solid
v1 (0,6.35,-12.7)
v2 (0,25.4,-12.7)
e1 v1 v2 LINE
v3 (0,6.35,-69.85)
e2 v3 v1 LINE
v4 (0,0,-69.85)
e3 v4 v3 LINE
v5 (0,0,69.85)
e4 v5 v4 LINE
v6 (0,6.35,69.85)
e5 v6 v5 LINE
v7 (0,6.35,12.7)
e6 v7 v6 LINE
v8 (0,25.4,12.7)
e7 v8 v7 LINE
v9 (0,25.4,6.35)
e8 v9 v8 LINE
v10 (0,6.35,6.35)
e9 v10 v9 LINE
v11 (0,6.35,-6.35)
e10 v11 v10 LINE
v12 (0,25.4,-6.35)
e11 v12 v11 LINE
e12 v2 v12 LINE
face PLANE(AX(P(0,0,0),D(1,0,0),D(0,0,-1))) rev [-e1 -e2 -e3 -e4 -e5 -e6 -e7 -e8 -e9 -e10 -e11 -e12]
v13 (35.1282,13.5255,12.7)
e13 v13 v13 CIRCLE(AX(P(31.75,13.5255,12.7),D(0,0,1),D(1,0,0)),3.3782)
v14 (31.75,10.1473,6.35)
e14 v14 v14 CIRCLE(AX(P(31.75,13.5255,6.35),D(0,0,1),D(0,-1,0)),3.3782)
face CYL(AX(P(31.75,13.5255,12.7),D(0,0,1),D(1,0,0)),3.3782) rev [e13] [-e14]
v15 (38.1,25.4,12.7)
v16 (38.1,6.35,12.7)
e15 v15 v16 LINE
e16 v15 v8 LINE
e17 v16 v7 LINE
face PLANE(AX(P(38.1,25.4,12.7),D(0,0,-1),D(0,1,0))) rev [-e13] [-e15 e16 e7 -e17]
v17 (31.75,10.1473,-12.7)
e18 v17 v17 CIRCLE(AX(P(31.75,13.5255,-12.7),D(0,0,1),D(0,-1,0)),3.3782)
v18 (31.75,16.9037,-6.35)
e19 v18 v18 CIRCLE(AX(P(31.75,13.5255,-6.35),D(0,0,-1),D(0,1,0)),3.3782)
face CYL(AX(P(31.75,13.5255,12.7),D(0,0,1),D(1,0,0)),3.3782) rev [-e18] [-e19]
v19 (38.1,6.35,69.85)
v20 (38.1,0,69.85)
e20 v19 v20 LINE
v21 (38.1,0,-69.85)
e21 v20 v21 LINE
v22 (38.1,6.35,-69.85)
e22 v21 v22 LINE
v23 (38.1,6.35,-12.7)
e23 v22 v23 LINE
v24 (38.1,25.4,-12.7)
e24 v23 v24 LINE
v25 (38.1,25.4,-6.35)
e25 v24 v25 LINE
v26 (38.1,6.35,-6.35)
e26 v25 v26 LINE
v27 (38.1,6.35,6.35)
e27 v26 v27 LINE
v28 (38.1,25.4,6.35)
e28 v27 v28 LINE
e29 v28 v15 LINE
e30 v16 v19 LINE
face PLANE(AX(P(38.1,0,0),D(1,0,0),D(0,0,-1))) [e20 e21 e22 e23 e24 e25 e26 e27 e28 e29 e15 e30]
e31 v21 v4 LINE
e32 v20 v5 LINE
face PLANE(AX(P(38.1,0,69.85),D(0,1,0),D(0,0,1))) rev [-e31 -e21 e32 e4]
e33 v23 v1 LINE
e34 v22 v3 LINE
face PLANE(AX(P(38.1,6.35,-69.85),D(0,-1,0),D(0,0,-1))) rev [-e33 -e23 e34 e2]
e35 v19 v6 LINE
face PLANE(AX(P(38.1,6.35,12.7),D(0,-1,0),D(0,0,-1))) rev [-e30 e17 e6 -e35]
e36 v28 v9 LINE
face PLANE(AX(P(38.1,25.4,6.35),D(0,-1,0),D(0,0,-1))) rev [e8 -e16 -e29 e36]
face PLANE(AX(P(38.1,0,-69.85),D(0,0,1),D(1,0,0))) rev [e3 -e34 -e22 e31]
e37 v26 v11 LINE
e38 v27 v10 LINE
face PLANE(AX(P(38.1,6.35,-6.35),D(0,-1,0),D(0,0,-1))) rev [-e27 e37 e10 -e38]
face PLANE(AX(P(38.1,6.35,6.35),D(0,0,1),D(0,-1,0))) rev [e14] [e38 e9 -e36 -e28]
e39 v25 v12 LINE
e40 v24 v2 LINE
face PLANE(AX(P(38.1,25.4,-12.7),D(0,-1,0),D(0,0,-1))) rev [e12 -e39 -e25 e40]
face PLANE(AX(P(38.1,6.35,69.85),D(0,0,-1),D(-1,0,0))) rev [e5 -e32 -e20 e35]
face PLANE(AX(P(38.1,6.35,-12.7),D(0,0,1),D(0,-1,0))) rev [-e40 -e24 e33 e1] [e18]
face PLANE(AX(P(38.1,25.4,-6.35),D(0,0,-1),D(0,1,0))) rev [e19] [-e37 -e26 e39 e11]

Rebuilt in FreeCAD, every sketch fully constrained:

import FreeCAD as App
import Part
import Sketcher

V = App.Vector
Q = App.Units.Quantity

doc = App.newDocument("Part")
params = doc.addObject("Spreadsheet::Sheet", "Params")
for row, (alias, value) in enumerate([
    ("sketch1_height", "5.5 in"),
    ("sketch1_height2", "0.5 in"),
    ("pad1_length", "1.5 in"),
    ("sketch2_diameter", "0.266 in"),
    ("hole_diameter", "0.266 in"),
], start=1):
    params.set(f"A{row}", alias)
    params.set(f"B{row}", "=" + value)
    params.setAlias(f"B{row}", alias)

body = doc.addObject("PartDesign::Body", "Body")

# Sketch on YZ plane
sketch1 = body.newObject("Sketcher::SketchObject", "Sketch")
sketch1.AttachmentSupport = (doc.getObject("YZ_Plane"), [""])
sketch1.MapMode = "FlatFace"
sketch1.addGeometry([
    Part.LineSegment(V(0, 70, 0), V(0, -70, 0)),  # 0
    Part.LineSegment(V(0, -70, 0), V(6, -70, 0)),  # 1
    Part.LineSegment(V(6, -70, 0), V(6, -13, 0)),  # 2
    Part.LineSegment(V(6, -13, 0), V(25, -13, 0)),  # 3
    Part.LineSegment(V(25, -13, 0), V(25, -6, 0)),  # 4
    Part.LineSegment(V(25, -6, 0), V(6, -6, 0)),  # 5
    Part.LineSegment(V(6, -6, 0), V(6, 6, 0)),  # 6
    Part.LineSegment(V(6, 6, 0), V(25, 6, 0)),  # 7
    Part.LineSegment(V(25, 6, 0), V(25, 13, 0)),  # 8
    Part.LineSegment(V(25, 13, 0), V(6, 13, 0)),  # 9
    Part.LineSegment(V(6, 13, 0), V(6, 70, 0)),  # 10
    Part.LineSegment(V(6, 70, 0), V(0, 70, 0)),  # 11
], False)
sketch1.addConstraint([
    Sketcher.Constraint("Coincident", 0, 2, 1, 1),
    Sketcher.Constraint("Coincident", 1, 2, 2, 1),
    Sketcher.Constraint("Coincident", 2, 2, 3, 1),
    Sketcher.Constraint("Coincident", 3, 2, 4, 1),
    Sketcher.Constraint("Coincident", 4, 2, 5, 1),
    Sketcher.Constraint("Coincident", 5, 2, 6, 1),
    Sketcher.Constraint("Coincident", 6, 2, 7, 1),
    Sketcher.Constraint("Coincident", 7, 2, 8, 1),
    Sketcher.Constraint("Coincident", 8, 2, 9, 1),
    Sketcher.Constraint("Coincident", 9, 2, 10, 1),
    Sketcher.Constraint("Coincident", 10, 2, 11, 1),
    Sketcher.Constraint("Coincident", 11, 2, 0, 1),
    Sketcher.Constraint("Vertical", 0),
    Sketcher.Constraint("Horizontal", 1),
    Sketcher.Constraint("Vertical", 2),
    Sketcher.Constraint("Horizontal", 3),
    Sketcher.Constraint("Vertical", 4),
    Sketcher.Constraint("Horizontal", 5),
    Sketcher.Constraint("Vertical", 6),
    Sketcher.Constraint("Horizontal", 7),
    Sketcher.Constraint("Vertical", 8),
    Sketcher.Constraint("Horizontal", 9),
    Sketcher.Constraint("Vertical", 10),
    Sketcher.Constraint("Horizontal", 11),
    Sketcher.Constraint("Symmetric", 0, 2, 11, 2, -1, 1),
    Sketcher.Constraint("Symmetric", 4, 2, 7, 2, -1),
    Sketcher.Constraint("Symmetric", 2, 2, 9, 2, -1),
    Sketcher.Constraint("Vertical", 2, 2, 5, 2),
    Sketcher.Constraint("Equal", 11, 4),
    Sketcher.Constraint("DistanceY", 0, 2, 0, 1, Q("5.5 in")),
    Sketcher.Constraint("DistanceY", 6, 1, 6, 2, Q("0.5 in")),
    Sketcher.Constraint("DistanceX", -1, 1, 3, 2, Q("1 in")),
    Sketcher.Constraint("DistanceY", 3, 2, 8, 2, Q("1 in")),
])
sketch1.setExpression("Constraints[29]", "Params.sketch1_height")
sketch1.setExpression("Constraints[30]", "Params.sketch1_height2")
pad1 = body.newObject("PartDesign::Pad", "Pad")
pad1.Profile = sketch1
pad1.setExpression("Length", "Params.pad1_length")

# Sketch on XY plane
sketch2 = body.newObject("Sketcher::SketchObject", "Sketch001")
sketch2.AttachmentSupport = (doc.getObject("XY_Plane"), [""])
sketch2.MapMode = "FlatFace"
sketch2.AttachmentOffset = App.Placement(V(0, 0, 0.5 * 25.4), App.Rotation())
sketch2.addGeometry(Part.Circle(V(31.8, 13.5, 0), V(0, 0, 1), 3.4), False)
sketch2.addConstraint([
    Sketcher.Constraint("Diameter", 0, Q("0.266 in")),
    Sketcher.Constraint("DistanceX", -1, 1, 0, 3, Q("1.25 in")),
    Sketcher.Constraint("DistanceY", -1, 1, 0, 3, Q("0.5325 in")),
])
sketch2.setExpression("Constraints[0]", "Params.sketch2_diameter")
doc.recompute()
hole = body.newObject("PartDesign::Hole", "Hole")
hole.Profile = sketch2
hole.ThreadType = "None"
hole.setExpression("Diameter", "Params.hole_diameter")
hole.DepthType = "ThroughAll"

doc.recompute()
